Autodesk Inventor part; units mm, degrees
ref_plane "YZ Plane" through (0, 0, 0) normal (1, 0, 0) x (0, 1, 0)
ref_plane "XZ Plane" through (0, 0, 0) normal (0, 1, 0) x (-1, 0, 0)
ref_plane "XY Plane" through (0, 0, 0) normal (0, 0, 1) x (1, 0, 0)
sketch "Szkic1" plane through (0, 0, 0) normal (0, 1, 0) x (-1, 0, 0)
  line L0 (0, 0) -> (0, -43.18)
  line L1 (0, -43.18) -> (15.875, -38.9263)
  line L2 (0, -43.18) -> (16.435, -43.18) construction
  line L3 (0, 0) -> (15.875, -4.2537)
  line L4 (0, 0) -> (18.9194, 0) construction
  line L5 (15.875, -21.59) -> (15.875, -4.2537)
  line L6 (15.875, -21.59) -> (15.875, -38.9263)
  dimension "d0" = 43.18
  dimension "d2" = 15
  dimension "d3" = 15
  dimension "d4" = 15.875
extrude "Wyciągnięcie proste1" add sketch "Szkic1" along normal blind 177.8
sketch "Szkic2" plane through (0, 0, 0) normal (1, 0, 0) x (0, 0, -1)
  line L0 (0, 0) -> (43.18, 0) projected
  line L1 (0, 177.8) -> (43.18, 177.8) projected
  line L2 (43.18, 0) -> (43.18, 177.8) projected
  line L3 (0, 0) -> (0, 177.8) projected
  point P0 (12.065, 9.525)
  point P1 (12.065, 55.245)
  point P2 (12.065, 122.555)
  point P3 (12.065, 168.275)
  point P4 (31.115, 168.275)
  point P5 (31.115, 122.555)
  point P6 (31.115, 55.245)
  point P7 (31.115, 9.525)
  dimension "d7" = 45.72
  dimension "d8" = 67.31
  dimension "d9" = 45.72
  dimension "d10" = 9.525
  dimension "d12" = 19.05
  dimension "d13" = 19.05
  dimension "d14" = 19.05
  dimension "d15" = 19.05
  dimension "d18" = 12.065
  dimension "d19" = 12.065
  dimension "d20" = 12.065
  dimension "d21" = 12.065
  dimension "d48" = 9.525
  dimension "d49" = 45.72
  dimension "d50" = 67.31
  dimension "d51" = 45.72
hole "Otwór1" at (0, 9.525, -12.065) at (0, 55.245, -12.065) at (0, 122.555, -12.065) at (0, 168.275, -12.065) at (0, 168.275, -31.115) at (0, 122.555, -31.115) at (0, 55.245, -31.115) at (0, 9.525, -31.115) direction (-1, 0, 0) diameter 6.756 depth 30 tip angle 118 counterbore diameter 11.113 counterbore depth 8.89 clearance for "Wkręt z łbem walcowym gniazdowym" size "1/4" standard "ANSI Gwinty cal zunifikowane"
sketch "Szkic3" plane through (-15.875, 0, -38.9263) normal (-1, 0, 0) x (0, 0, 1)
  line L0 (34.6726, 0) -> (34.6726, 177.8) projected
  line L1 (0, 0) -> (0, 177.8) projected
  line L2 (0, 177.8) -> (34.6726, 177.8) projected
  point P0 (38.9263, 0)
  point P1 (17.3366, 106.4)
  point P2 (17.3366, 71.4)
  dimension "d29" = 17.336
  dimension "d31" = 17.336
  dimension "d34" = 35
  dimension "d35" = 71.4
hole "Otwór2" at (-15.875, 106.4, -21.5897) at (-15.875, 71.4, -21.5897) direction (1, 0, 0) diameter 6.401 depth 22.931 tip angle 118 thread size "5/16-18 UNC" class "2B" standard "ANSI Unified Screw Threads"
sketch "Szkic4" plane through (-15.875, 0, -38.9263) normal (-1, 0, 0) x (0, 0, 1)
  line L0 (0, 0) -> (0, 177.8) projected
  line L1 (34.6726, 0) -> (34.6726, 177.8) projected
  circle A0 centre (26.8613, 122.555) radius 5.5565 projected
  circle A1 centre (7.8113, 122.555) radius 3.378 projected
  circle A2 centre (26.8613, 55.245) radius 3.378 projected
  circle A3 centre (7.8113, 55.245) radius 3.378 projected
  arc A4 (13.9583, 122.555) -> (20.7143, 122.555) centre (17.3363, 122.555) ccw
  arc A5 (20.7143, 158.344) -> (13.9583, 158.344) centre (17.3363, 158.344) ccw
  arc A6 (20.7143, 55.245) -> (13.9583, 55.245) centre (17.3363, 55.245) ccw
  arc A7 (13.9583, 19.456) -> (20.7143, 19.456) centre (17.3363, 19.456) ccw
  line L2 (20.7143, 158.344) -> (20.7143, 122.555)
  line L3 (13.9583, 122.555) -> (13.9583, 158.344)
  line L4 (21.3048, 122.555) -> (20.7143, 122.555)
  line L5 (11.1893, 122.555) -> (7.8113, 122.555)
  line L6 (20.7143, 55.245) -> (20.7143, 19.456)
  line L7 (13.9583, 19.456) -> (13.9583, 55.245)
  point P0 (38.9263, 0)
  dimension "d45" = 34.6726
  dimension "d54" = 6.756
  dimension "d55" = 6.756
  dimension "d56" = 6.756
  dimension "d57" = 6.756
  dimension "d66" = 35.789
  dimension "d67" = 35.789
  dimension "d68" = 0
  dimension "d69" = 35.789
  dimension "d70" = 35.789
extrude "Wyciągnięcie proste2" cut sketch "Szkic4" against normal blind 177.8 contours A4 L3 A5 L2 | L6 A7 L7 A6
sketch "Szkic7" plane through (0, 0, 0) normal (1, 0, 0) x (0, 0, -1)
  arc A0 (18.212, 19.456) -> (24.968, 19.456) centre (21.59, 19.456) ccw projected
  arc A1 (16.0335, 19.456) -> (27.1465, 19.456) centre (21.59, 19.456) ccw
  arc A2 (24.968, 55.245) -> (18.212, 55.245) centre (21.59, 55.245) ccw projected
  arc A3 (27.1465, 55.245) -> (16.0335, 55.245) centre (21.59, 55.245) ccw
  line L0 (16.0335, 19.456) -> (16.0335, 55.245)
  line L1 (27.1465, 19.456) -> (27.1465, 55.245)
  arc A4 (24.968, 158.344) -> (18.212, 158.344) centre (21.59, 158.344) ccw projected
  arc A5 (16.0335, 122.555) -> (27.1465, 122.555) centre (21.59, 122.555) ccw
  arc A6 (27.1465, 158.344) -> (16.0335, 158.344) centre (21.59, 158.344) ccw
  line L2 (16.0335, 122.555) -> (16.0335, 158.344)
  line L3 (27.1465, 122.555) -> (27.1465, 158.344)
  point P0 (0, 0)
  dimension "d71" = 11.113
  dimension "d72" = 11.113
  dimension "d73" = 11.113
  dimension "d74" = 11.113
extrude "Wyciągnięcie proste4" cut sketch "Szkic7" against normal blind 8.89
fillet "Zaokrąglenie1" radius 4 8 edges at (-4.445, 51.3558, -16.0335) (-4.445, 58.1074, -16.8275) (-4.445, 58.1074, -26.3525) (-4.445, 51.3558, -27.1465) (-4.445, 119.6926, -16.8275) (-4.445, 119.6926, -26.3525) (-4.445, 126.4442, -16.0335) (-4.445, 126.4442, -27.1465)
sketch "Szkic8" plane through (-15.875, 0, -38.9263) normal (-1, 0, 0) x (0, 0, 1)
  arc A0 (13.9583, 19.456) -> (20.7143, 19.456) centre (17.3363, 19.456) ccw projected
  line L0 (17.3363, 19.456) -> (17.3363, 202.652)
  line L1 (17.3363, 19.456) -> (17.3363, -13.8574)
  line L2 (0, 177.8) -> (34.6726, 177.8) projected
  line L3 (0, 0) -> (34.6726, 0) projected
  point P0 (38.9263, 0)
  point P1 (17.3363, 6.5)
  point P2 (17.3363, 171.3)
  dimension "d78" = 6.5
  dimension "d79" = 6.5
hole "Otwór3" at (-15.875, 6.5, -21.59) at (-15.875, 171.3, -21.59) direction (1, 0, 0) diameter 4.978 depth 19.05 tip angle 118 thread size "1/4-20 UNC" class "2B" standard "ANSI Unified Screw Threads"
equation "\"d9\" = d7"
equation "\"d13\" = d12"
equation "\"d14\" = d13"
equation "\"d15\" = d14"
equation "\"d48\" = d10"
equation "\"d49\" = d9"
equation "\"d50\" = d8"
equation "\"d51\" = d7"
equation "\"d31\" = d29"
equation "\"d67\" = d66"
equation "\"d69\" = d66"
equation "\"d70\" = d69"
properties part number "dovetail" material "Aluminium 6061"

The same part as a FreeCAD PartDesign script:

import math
import FreeCAD as App
import Part
import Sketcher
from FreeCAD import Vector
Q = App.Units.Quantity


def edges_at(feature, points):
    """Names of the edges that pass closest to the given points."""
    edges = feature.Shape.Edges
    near = lambda p: min(range(len(edges)), key=lambda i: edges[i].distToShape(Part.Vertex(*p))[0])
    return sorted({f"Edge{near(p) + 1}" for p in points})

doc = App.newDocument("Part")
body = doc.addObject("PartDesign::Body", "Body")

# Sketch on XZ plane
sketch1 = body.newObject("Sketcher::SketchObject", "Sketch")
sketch1.AttachmentSupport = (doc.getObject("XZ_Plane"), [""])
sketch1.MapMode = "FlatFace"
sketch1.addGeometry([
    Part.LineSegment(Vector(-15.875, -4.2537, 0), Vector(0, 0, 0)),
    Part.LineSegment(Vector(0, 0, 0), Vector(0, -43.18, 0)),
    Part.LineSegment(Vector(0, -43.18, 0), Vector(-15.875, -38.9263, 0)),
    Part.LineSegment(Vector(-15.875, -38.9263, 0), Vector(-15.875, -4.2537, 0)),
], False)
sketch1.addConstraint([
    Sketcher.Constraint("Coincident", 0, 2, 1, 1),
    Sketcher.Constraint("Coincident", 1, 2, 2, 1),
    Sketcher.Constraint("Coincident", 2, 2, 3, 1),
    Sketcher.Constraint("Coincident", 3, 2, 0, 1),
    Sketcher.Constraint("Vertical", 1),
    Sketcher.Constraint("Vertical", 3),
    Sketcher.Constraint("Coincident", 0, 2, -1, 1),
    Sketcher.Constraint("Equal", 0, 2),
    Sketcher.Constraint("DistanceY", 1, 2, 1, 1, Q("1.7 in")),
    Sketcher.Constraint("Angle", 0, Q("15 deg")),
    Sketcher.Constraint("DistanceX", 2, 2, -1, 1, Q("0.625 in")),
])
pad1 = body.newObject("PartDesign::Pad", "Pad")
pad1.Profile = sketch1
pad1.Length = Q("7 in")
pad1.Reversed = True

# Sketch on YZ plane
sketch2 = body.newObject("Sketcher::SketchObject", "Sketch001")
sketch2.AttachmentSupport = (doc.getObject("YZ_Plane"), [""])
sketch2.MapMode = "FlatFace"
sketch2.addGeometry([
    Part.Circle(Vector(9.525, -12.065, 0), Vector(0, 0, 1), 3.378),  # 0
    Part.Circle(Vector(55.245, -12.065, 0), Vector(0, 0, 1), 3.378),  # 1
    Part.Circle(Vector(122.555, -12.065, 0), Vector(0, 0, 1), 3.378),  # 2
    Part.Circle(Vector(168.275, -12.065, 0), Vector(0, 0, 1), 3.378),  # 3
    Part.Circle(Vector(168.275, -31.115, 0), Vector(0, 0, 1), 3.378),  # 4
    Part.Circle(Vector(122.555, -31.115, 0), Vector(0, 0, 1), 3.378),  # 5
    Part.Circle(Vector(55.245, -31.115, 0), Vector(0, 0, 1), 3.378),  # 6
    Part.Circle(Vector(9.525, -31.115, 0), Vector(0, 0, 1), 3.378),  # 7
], False)
sketch2.addConstraint([
    Sketcher.Constraint("Equal", 0, 1),
    Sketcher.Constraint("Equal", 1, 2),
    Sketcher.Constraint("Equal", 2, 3),
    Sketcher.Constraint("Equal", 3, 4),
    Sketcher.Constraint("Equal", 4, 5),
    Sketcher.Constraint("Equal", 5, 6),
    Sketcher.Constraint("Equal", 6, 7),
    Sketcher.Constraint("Horizontal", 0, 3, 1, 3),
    Sketcher.Constraint("Horizontal", 1, 3, 2, 3),
    Sketcher.Constraint("Horizontal", 2, 3, 3, 3),
    Sketcher.Constraint("Horizontal", 4, 3, 5, 3),
    Sketcher.Constraint("Horizontal", 5, 3, 6, 3),
    Sketcher.Constraint("Horizontal", 6, 3, 7, 3),
    Sketcher.Constraint("Vertical", 3, 3, 4, 3),
    Sketcher.Constraint("Vertical", 2, 3, 5, 3),
    Sketcher.Constraint("Vertical", 1, 3, 6, 3),
    Sketcher.Constraint("Vertical", 0, 3, 7, 3),
    Sketcher.Constraint("DistanceX", 0, 3, 1, 3, Q("1.8 in")),
    Sketcher.Constraint("DistanceX", 2, 3, 3, 3, Q("1.8 in")),
    Sketcher.Constraint("Diameter", 0, 6.756),
    Sketcher.Constraint("DistanceX", 1, 3, 2, 3, Q("2.65 in")),
    Sketcher.Constraint("DistanceY", 4, 3, 3, 3, Q("0.75 in")),
    Sketcher.Constraint("DistanceX", -1, 1, 0, 3, Q("0.375 in")),
    Sketcher.Constraint("DistanceY", 0, 3, -1, 1, Q("0.475 in")),
])
doc.recompute()
hole = body.newObject("PartDesign::Hole", "Hole")
hole.Profile = sketch2
hole.ThreadType = "None"
hole.Diameter = 6.756
hole.DepthType = "Dimension"
hole.Depth = Q("1.1811024 in")
hole.DrillPoint = "Angled"
hole.DrillPointAngle = 118
hole.HoleCutType = "Counterbore"
hole.HoleCutDiameter = 11.113
hole.HoleCutDepth = Q("0.35 in")

# Sketch on YZ plane
sketch3 = body.newObject("Sketcher::SketchObject", "Sketch002")
sketch3.AttachmentSupport = (doc.getObject("YZ_Plane"), [""])
sketch3.MapMode = "FlatFace"
sketch3.AttachmentOffset = App.Placement(Vector(0, 0, -0.625 * 25.4), App.Rotation())
sketch3.addGeometry([
    Part.Circle(Vector(106.4, -21.5897, 0), Vector(0, 0, 1), 3.2005),
    Part.Circle(Vector(71.4, -21.5897, 0), Vector(0, 0, 1), 3.2005),
], False)
sketch3.addConstraint([
    Sketcher.Constraint("Equal", 0, 1),
    Sketcher.Constraint("Horizontal", 0, 3, 1, 3),
    Sketcher.Constraint("Diameter", 0, Q("0.252 in")),
    Sketcher.Constraint("DistanceY", 0, 3, -1, 1, Q("0.85 in")),
    Sketcher.Constraint("DistanceX", -1, 1, 0, 3, 106.4),
    Sketcher.Constraint("DistanceX", -1, 1, 1, 3, 71.4),
])
doc.recompute()
hole2 = body.newObject("PartDesign::Hole", "Hole001")
hole2.Profile = sketch3
hole2.ThreadType = "None"
hole2.Diameter = Q("0.2520079 in")
hole2.DepthType = "Dimension"
hole2.Depth = Q("0.9027953 in")
hole2.DrillPoint = "Angled"
hole2.DrillPointAngle = 118
hole2.Reversed = True

# Sketch on YZ plane
sketch4 = body.newObject("Sketcher::SketchObject", "Sketch003")
sketch4.AttachmentSupport = (doc.getObject("YZ_Plane"), [""])
sketch4.MapMode = "FlatFace"
sketch4.AttachmentOffset = App.Placement(Vector(0, 0, -0.625 * 25.4), App.Rotation())
sketch4.addGeometry([
    Part.ArcOfCircle(Part.Circle(Vector(122.555, -21.59, 0), Vector(0, 0, 1), 3.378), math.radians(90), math.radians(270)),  # 0
    Part.LineSegment(Vector(122.555, -18.212, 0), Vector(158.344, -18.212, 0)),  # 1
    Part.ArcOfCircle(Part.Circle(Vector(158.344, -21.59, 0), Vector(0, 0, 1), 3.378), math.radians(-90), math.radians(90)),  # 2
    Part.LineSegment(Vector(158.344, -24.968, 0), Vector(122.555, -24.968, 0)),  # 3
    Part.LineSegment(Vector(19.456, -18.212, 0), Vector(55.245, -18.212, 0)),  # 4
    Part.ArcOfCircle(Part.Circle(Vector(55.245, -21.59, 0), Vector(0, 0, 1), 3.378), math.radians(-90), math.radians(90)),  # 5
    Part.LineSegment(Vector(55.245, -24.968, 0), Vector(19.456, -24.968, 0)),  # 6
    Part.ArcOfCircle(Part.Circle(Vector(19.456, -21.59, 0), Vector(0, 0, 1), 3.378), math.radians(90), math.radians(270)),  # 7
], False)
sketch4.addConstraint([
    Sketcher.Constraint("Tangent", 0, 1, 1, 1),
    Sketcher.Constraint("Tangent", 1, 2, 2, 2),
    Sketcher.Constraint("Tangent", 2, 1, 3, 1),
    Sketcher.Constraint("Tangent", 3, 2, 0, 2),
    Sketcher.Constraint("Tangent", 4, 2, 5, 2),
    Sketcher.Constraint("Tangent", 5, 1, 6, 1),
    Sketcher.Constraint("Tangent", 6, 2, 7, 2),
    Sketcher.Constraint("Tangent", 7, 1, 4, 1),
    Sketcher.Constraint("Horizontal", 1),
    Sketcher.Constraint("Horizontal", 3),
    Sketcher.Constraint("Horizontal", 4),
    Sketcher.Constraint("Horizontal", 6),
    Sketcher.Constraint("Equal", 2, 5),
    Sketcher.Constraint("Horizontal", 2, 3, 5, 3),
    Sketcher.Constraint("Equal", 3, 4),
    Sketcher.Constraint("Radius", 0, Q("0.133 in")),
    Sketcher.Constraint("DistanceX", 1, 1, 1, 2, 35.789),
    Sketcher.Constraint("DistanceY", 0, 3, -1, 1, Q("0.85 in")),
    Sketcher.Constraint("DistanceX", 5, 3, 0, 3, Q("2.65 in")),
    Sketcher.Constraint("DistanceX", -1, 1, 0, 3, Q("4.825 in")),
])
pocket1 = body.newObject("PartDesign::Pocket", "Pocket")
pocket1.Profile = sketch4
pocket1.Length = Q("7 in")
pocket1.Reversed = True

# Sketch on YZ plane
sketch5 = body.newObject("Sketcher::SketchObject", "Sketch004")
sketch5.AttachmentSupport = (doc.getObject("YZ_Plane"), [""])
sketch5.MapMode = "FlatFace"
sketch5.addGeometry([
    Part.LineSegment(Vector(55.245, -16.0335, 0), Vector(19.456, -16.0335, 0)),  # 0
    Part.ArcOfCircle(Part.Circle(Vector(19.456, -21.59, 0), Vector(0, 0, 1), 5.5565), math.radians(90), math.radians(270)),  # 1
    Part.LineSegment(Vector(19.456, -27.1465, 0), Vector(55.245, -27.1465, 0)),  # 2
    Part.ArcOfCircle(Part.Circle(Vector(55.245, -21.59, 0), Vector(0, 0, 1), 5.5565), math.radians(-90), math.radians(90)),  # 3
    Part.LineSegment(Vector(158.344, -16.0335, 0), Vector(122.555, -16.0335, 0)),  # 4
    Part.ArcOfCircle(Part.Circle(Vector(122.555, -21.59, 0), Vector(0, 0, 1), 5.5565), math.radians(90), math.radians(270)),  # 5
    Part.LineSegment(Vector(122.555, -27.1465, 0), Vector(158.344, -27.1465, 0)),  # 6
    Part.ArcOfCircle(Part.Circle(Vector(158.344, -21.59, 0), Vector(0, 0, 1), 5.5565), math.radians(-90), math.radians(90)),  # 7
], False)
sketch5.addConstraint([
    Sketcher.Constraint("Tangent", 0, 2, 1, 1),
    Sketcher.Constraint("Tangent", 1, 2, 2, 1),
    Sketcher.Constraint("Tangent", 2, 2, 3, 1),
    Sketcher.Constraint("Tangent", 3, 2, 0, 1),
    Sketcher.Constraint("Tangent", 4, 2, 5, 1),
    Sketcher.Constraint("Tangent", 5, 2, 6, 1),
    Sketcher.Constraint("Tangent", 6, 2, 7, 1),
    Sketcher.Constraint("Tangent", 7, 2, 4, 1),
    Sketcher.Constraint("Horizontal", 0),
    Sketcher.Constraint("Horizontal", 2),
    Sketcher.Constraint("Horizontal", 4),
    Sketcher.Constraint("Horizontal", 6),
    Sketcher.Constraint("Equal", 3, 5),
    Sketcher.Constraint("Horizontal", 3, 3, 5, 3),
    Sketcher.Constraint("Equal", 2, 4),
    Sketcher.Constraint("Radius", 1, 5.5565),
    Sketcher.Constraint("DistanceY", 1, 3, -1, 1, Q("0.85 in")),
    Sketcher.Constraint("DistanceX", 3, 3, 5, 3, Q("2.65 in")),
    Sketcher.Constraint("DistanceX", -1, 1, 3, 3, Q("2.175 in")),
    Sketcher.Constraint("DistanceX", 0, 2, 0, 1, 35.789),
])
pocket2 = body.newObject("PartDesign::Pocket", "Pocket001")
pocket2.Profile = sketch5
pocket2.Length = Q("0.35 in")
doc.recompute()

fillet = body.newObject("PartDesign::Fillet", "Fillet")
fillet.Base = (pocket2, edges_at(pocket2, [
    (-4.445, 51.356, -16.034),
    (-4.445, 58.107, -16.828),
    (-4.445, 58.107, -26.352),
    (-4.445, 51.356, -27.146),
    (-4.445, 119.693, -16.828),
    (-4.445, 119.693, -26.352),
    (-4.445, 126.444, -16.034),
    (-4.445, 126.444, -27.146),
]))
fillet.Radius = 4

# Sketch on YZ plane
sketch6 = body.newObject("Sketcher::SketchObject", "Sketch005")
sketch6.AttachmentSupport = (doc.getObject("YZ_Plane"), [""])
sketch6.MapMode = "FlatFace"
sketch6.AttachmentOffset = App.Placement(Vector(0, 0, -0.625 * 25.4), App.Rotation())
sketch6.addGeometry([
    Part.Circle(Vector(6.5, -21.59, 0), Vector(0, 0, 1), 2.489),
    Part.Circle(Vector(171.3, -21.59, 0), Vector(0, 0, 1), 2.489),
], False)
sketch6.addConstraint([
    Sketcher.Constraint("Equal", 0, 1),
    Sketcher.Constraint("Horizontal", 0, 3, 1, 3),
    Sketcher.Constraint("Diameter", 0, 4.978),
    Sketcher.Constraint("DistanceY", 0, 3, -1, 1, Q("0.85 in")),
    Sketcher.Constraint("DistanceX", -1, 1, 0, 3, Q("0.2559 in")),
    Sketcher.Constraint("DistanceX", -1, 1, 1, 3, Q("6.7441 in")),
])
doc.recompute()
hole3 = body.newObject("PartDesign::Hole", "Hole002")
hole3.Profile = sketch6
hole3.ThreadType = "None"
hole3.Diameter = 4.978
hole3.DepthType = "Dimension"
hole3.Depth = Q("0.75 in")
hole3.DrillPoint = "Angled"
hole3.DrillPointAngle = 118
hole3.Reversed = True

doc.recompute()
